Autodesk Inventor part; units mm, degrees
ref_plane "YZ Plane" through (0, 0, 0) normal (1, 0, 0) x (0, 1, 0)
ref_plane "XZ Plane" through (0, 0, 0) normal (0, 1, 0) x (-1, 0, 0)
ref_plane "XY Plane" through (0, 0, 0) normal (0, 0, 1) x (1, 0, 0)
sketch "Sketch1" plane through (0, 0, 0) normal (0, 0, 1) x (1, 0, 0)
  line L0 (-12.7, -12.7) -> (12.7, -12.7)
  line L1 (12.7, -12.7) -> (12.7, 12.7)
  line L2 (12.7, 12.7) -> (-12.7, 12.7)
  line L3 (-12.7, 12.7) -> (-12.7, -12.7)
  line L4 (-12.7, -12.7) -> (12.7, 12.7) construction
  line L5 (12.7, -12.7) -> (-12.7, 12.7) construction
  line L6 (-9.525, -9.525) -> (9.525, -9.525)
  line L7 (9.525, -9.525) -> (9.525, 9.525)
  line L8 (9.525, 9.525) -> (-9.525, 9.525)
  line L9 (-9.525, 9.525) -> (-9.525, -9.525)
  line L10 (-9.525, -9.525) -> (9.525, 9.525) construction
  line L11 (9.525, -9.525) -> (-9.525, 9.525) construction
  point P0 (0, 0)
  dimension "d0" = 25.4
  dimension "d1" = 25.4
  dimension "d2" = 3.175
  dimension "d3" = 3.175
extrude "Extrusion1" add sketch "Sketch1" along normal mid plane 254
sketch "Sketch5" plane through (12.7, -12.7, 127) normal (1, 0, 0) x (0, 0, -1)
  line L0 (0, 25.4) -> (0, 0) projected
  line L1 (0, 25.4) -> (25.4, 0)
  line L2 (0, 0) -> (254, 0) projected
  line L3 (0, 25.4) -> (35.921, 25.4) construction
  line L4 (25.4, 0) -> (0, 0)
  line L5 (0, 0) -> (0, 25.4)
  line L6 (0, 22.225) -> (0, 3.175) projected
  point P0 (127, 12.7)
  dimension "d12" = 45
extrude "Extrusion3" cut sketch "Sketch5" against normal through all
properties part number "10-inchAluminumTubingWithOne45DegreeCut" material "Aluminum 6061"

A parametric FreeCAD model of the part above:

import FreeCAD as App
import Part
import Sketcher

V = App.Vector
Q = App.Units.Quantity

doc = App.newDocument("Part")
body = doc.addObject("PartDesign::Body", "Body")

# Sketch on XY plane
sketch1 = body.newObject("Sketcher::SketchObject", "Sketch")
sketch1.AttachmentSupport = (doc.getObject("XY_Plane"), [""])
sketch1.MapMode = "FlatFace"
sketch1.addGeometry([
    Part.LineSegment(V(-13, 13, 0), V(-13, -13, 0)),  # 0
    Part.LineSegment(V(-13, -13, 0), V(13, -13, 0)),  # 1
    Part.LineSegment(V(13, -13, 0), V(13, 13, 0)),  # 2
    Part.LineSegment(V(13, 13, 0), V(-13, 13, 0)),  # 3
    Part.LineSegment(V(10, -10, 0), V(-10, -10, 0)),  # 4
    Part.LineSegment(V(-10, -10, 0), V(-10, 10, 0)),  # 5
    Part.LineSegment(V(-10, 10, 0), V(10, 10, 0)),  # 6
    Part.LineSegment(V(10, 10, 0), V(10, -10, 0)),  # 7
], False)
sketch1.addConstraint([
    Sketcher.Constraint("Coincident", 0, 2, 1, 1),
    Sketcher.Constraint("Coincident", 1, 2, 2, 1),
    Sketcher.Constraint("Coincident", 2, 2, 3, 1),
    Sketcher.Constraint("Coincident", 3, 2, 0, 1),
    Sketcher.Constraint("Coincident", 4, 2, 5, 1),
    Sketcher.Constraint("Coincident", 5, 2, 6, 1),
    Sketcher.Constraint("Coincident", 6, 2, 7, 1),
    Sketcher.Constraint("Coincident", 7, 2, 4, 1),
    Sketcher.Constraint("Vertical", 0),
    Sketcher.Constraint("Horizontal", 1),
    Sketcher.Constraint("Vertical", 2),
    Sketcher.Constraint("Horizontal", 3),
    Sketcher.Constraint("Horizontal", 4),
    Sketcher.Constraint("Vertical", 5),
    Sketcher.Constraint("Horizontal", 6),
    Sketcher.Constraint("Vertical", 7),
    Sketcher.Constraint("Symmetric", 0, 2, 2, 2, -1, 1),
    Sketcher.Constraint("Symmetric", 4, 2, 6, 2, -1, 1),
    Sketcher.Constraint("Equal", 3, 0),
    Sketcher.Constraint("Equal", 6, 5),
    Sketcher.Constraint("DistanceX", 1, 1, 1, 2, Q("1 in")),
    Sketcher.Constraint("DistanceX", 0, 2, 4, 2, Q("0.125 in")),
])
pad1 = body.newObject("PartDesign::Pad", "Pad")
pad1.Profile = sketch1
pad1.Length = Q("10 in")
pad1.Midplane = True

# Sketch on YZ plane
sketch2 = body.newObject("Sketcher::SketchObject", "Sketch001")
sketch2.AttachmentSupport = (doc.getObject("YZ_Plane"), [""])
sketch2.MapMode = "FlatFace"
sketch2.AttachmentOffset = App.Placement(V(0, 0, 0.5 * 25.4), App.Rotation())
sketch2.addGeometry([
    Part.LineSegment(V(-13, 102, 0), V(13, 127, 0)),
    Part.LineSegment(V(13, 127, 0), V(-13, 127, 0)),
    Part.LineSegment(V(-13, 127, 0), V(-13, 102, 0)),
], False)
sketch2.addConstraint([
    Sketcher.Constraint("Coincident", 0, 2, 1, 1),
    Sketcher.Constraint("Coincident", 1, 2, 2, 1),
    Sketcher.Constraint("Coincident", 2, 2, 0, 1),
    Sketcher.Constraint("Horizontal", 1),
    Sketcher.Constraint("Vertical", 2),
    Sketcher.Constraint("Equal", 1, 2),
    Sketcher.Constraint("DistanceX", 1, 2, 1, 1, Q("1 in")),
    Sketcher.Constraint("DistanceY", -1, 1, 0, 2, Q("5 in")),
    Sketcher.Constraint("DistanceX", -1, 1, 0, 2, Q("0.5 in")),
])
pocket1 = body.newObject("PartDesign::Pocket", "Pocket")
pocket1.Profile = sketch2
pocket1.Type = "ThroughAll"

doc.recompute()
